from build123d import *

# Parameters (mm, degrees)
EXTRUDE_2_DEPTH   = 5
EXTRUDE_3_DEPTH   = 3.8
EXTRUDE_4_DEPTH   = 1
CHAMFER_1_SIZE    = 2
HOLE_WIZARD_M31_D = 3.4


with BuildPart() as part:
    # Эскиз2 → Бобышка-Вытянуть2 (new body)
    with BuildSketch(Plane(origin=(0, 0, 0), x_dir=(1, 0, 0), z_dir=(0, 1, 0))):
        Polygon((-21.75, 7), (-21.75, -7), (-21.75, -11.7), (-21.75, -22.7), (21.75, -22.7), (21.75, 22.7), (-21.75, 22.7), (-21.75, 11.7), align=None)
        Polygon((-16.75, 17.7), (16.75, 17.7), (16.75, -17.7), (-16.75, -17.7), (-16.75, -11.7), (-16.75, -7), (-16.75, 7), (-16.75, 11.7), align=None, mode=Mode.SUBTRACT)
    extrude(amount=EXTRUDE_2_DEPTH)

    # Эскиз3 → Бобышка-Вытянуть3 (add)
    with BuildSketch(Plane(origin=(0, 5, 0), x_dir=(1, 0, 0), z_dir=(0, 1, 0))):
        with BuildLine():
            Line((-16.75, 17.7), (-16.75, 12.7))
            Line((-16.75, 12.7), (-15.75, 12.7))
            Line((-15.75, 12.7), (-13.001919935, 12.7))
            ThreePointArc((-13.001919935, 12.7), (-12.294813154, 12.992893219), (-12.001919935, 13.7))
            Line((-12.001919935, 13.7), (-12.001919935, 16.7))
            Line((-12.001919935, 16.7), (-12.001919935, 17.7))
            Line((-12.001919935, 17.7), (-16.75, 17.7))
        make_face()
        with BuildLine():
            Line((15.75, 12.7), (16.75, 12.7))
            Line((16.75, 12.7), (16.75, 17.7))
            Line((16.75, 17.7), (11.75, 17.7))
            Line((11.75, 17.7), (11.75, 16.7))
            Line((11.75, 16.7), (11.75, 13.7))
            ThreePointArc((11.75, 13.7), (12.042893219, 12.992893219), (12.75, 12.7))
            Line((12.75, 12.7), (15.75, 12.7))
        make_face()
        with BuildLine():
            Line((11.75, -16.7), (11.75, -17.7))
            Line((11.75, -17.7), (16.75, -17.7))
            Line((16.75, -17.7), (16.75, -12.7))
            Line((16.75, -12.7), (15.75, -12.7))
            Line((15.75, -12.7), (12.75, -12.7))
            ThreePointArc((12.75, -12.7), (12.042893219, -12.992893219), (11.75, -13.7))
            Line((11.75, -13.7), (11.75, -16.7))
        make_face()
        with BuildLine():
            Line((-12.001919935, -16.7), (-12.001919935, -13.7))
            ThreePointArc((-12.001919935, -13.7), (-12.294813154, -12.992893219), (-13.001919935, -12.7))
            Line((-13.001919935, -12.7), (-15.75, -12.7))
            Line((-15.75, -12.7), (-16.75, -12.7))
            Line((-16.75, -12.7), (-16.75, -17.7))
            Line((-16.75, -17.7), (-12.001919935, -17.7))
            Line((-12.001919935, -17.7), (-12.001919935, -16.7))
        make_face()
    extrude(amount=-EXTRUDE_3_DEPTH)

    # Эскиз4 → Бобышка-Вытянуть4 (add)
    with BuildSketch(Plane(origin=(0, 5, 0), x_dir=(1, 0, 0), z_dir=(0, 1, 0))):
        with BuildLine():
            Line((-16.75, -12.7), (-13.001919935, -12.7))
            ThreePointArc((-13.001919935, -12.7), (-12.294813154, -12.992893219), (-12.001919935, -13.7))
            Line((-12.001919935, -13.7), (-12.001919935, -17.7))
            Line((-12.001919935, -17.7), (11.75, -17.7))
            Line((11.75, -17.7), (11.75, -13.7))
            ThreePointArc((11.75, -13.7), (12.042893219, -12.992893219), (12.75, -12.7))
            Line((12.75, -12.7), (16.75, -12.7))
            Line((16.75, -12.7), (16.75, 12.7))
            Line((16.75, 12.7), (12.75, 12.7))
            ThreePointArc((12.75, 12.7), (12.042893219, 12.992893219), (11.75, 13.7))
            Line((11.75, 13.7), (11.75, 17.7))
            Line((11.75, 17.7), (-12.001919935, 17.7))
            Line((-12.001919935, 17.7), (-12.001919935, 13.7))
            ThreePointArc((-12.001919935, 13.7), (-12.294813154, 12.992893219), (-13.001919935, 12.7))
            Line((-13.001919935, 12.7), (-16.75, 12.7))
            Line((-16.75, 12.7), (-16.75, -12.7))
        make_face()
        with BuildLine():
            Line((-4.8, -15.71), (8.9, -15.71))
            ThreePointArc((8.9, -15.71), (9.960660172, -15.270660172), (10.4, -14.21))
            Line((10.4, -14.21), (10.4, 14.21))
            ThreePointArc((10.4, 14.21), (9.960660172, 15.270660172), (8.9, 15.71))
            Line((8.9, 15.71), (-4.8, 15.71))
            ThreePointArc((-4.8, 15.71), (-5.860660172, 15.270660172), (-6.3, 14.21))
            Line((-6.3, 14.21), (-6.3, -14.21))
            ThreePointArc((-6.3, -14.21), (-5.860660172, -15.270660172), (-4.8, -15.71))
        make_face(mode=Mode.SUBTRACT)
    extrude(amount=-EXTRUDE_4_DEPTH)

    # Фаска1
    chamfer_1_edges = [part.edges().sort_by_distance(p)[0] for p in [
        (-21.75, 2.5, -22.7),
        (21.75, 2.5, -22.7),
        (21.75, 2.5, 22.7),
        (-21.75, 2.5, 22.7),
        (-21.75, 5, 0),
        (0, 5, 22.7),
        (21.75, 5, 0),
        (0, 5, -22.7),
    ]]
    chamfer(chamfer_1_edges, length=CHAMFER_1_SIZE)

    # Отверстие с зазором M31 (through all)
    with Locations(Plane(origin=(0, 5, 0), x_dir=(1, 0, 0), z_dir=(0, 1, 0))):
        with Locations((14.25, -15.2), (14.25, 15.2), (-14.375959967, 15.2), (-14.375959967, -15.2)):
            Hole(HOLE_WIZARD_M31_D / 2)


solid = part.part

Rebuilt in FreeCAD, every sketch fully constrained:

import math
import FreeCAD as App
import Part
import Sketcher

V = App.Vector


def edges_at(feature, points):
    """Names of the edges that pass closest to the given points."""
    edges = feature.Shape.Edges
    near = lambda p: min(range(len(edges)), key=lambda i: edges[i].distToShape(Part.Vertex(*p))[0])
    return sorted({f"Edge{near(p) + 1}" for p in points})

doc = App.newDocument("Part")
params = doc.addObject("Spreadsheet::Sheet", "Params")
for row, (alias, value) in enumerate([
    ("sketch1_width", "43.5 mm"),
    ("sketch1_width2", "33.5 mm"),
    ("sketch1_height", "45.4 mm"),
    ("sketch1_height2", "35.4 mm"),
    ("pad1_length", "5 mm"),
    ("sketch2_radius", "1 mm"),
    ("sketch2_width", "5 mm"),
    ("pad2_length", "3.8 mm"),
    ("sketch3_radius", "1 mm"),
    ("sketch3_radius2", "1.5 mm"),
    ("sketch3_width", "4 mm"),
    ("sketch3_width2", "13.7 mm"),
    ("sketch3_height", "25.4 mm"),
    ("pad3_length", "1 mm"),
    ("chamfer_size", "2 mm"),
    ("sketch4_diameter", "3.4 mm"),
    ("hole_diameter", "3.4 mm"),
], start=1):
    params.set(f"A{row}", alias)
    params.set(f"B{row}", "=" + value)
    params.setAlias(f"B{row}", alias)

body = doc.addObject("PartDesign::Body", "Body")

# Sketch on XZ plane
sketch1 = doc.addObject("Sketcher::SketchObject", "Sketch")
body.addObject(sketch1)
sketch1.AttachmentSupport = (doc.XZ_Plane, [""])
sketch1.MapMode = "FlatFace"
sketch1.addGeometry(Part.LineSegment(V(-22, 23, 0), V(22, 23, 0)), False)
sketch1.addGeometry(Part.LineSegment(V(22, 23, 0), V(22, -23, 0)), False)
sketch1.addGeometry(Part.LineSegment(V(22, -23, 0), V(-22, -23, 0)), False)
sketch1.addGeometry(Part.LineSegment(V(-22, -23, 0), V(-22, 23, 0)), False)
sketch1.addGeometry(Part.LineSegment(V(-17, 18, 0), V(-17, -18, 0)), False)
sketch1.addGeometry(Part.LineSegment(V(-17, -18, 0), V(17, -18, 0)), False)
sketch1.addGeometry(Part.LineSegment(V(17, -18, 0), V(17, 18, 0)), False)
sketch1.addGeometry(Part.LineSegment(V(17, 18, 0), V(-17, 18, 0)), False)
sketch1.addConstraint(Sketcher.Constraint("Coincident", 0, 2, 1, 1))
sketch1.addConstraint(Sketcher.Constraint("Coincident", 1, 2, 2, 1))
sketch1.addConstraint(Sketcher.Constraint("Coincident", 2, 2, 3, 1))
sketch1.addConstraint(Sketcher.Constraint("Coincident", 3, 2, 0, 1))
sketch1.addConstraint(Sketcher.Constraint("Coincident", 4, 2, 5, 1))
sketch1.addConstraint(Sketcher.Constraint("Coincident", 5, 2, 6, 1))
sketch1.addConstraint(Sketcher.Constraint("Coincident", 6, 2, 7, 1))
sketch1.addConstraint(Sketcher.Constraint("Coincident", 7, 2, 4, 1))
sketch1.addConstraint(Sketcher.Constraint("Horizontal", 0))
sketch1.addConstraint(Sketcher.Constraint("Vertical", 1))
sketch1.addConstraint(Sketcher.Constraint("Horizontal", 2))
sketch1.addConstraint(Sketcher.Constraint("Vertical", 3))
sketch1.addConstraint(Sketcher.Constraint("Vertical", 4))
sketch1.addConstraint(Sketcher.Constraint("Horizontal", 5))
sketch1.addConstraint(Sketcher.Constraint("Vertical", 6))
sketch1.addConstraint(Sketcher.Constraint("Horizontal", 7))
sketch1.addConstraint(Sketcher.Constraint("Symmetric", 0, 2, 2, 2, -1, 1))
sketch1.addConstraint(Sketcher.Constraint("Symmetric", 4, 2, 6, 2, -1, 1))
sketch1.addConstraint(Sketcher.Constraint("DistanceX", 0, 1, 0, 2, 43.5))
sketch1.addConstraint(Sketcher.Constraint("DistanceX", 5, 1, 5, 2, 33.5))
sketch1.addConstraint(Sketcher.Constraint("DistanceY", 1, 2, 1, 1, 45.4))
sketch1.addConstraint(Sketcher.Constraint("DistanceY", 4, 2, 4, 1, 35.4))
sketch1.setExpression("Constraints[18]", "Params.sketch1_width")
sketch1.setExpression("Constraints[19]", "Params.sketch1_width2")
sketch1.setExpression("Constraints[20]", "Params.sketch1_height")
sketch1.setExpression("Constraints[21]", "Params.sketch1_height2")
pad1 = doc.addObject("PartDesign::Pad", "Pad")
body.addObject(pad1)
pad1.Profile = sketch1
pad1.setExpression("Length", "Params.pad1_length")
pad1.Reversed = True

# Sketch on XZ plane
sketch2 = doc.addObject("Sketcher::SketchObject", "Sketch001")
body.addObject(sketch2)
sketch2.AttachmentSupport = (doc.XZ_Plane, [""])
sketch2.MapMode = "FlatFace"
sketch2.AttachmentOffset = App.Placement(V(0, 0, -5), App.Rotation())
sketch2.addGeometry(Part.LineSegment(V(-16.8, -17.7, 0), V(-16.8, -12.7, 0)), False)
sketch2.addGeometry(Part.LineSegment(V(-16.8, -12.7, 0), V(-13, -12.7, 0)), False)
sketch2.addGeometry(Part.ArcOfCircle(Part.Circle(V(-13, -13.7, 0), V(0, 0, 1), 1), math.radians(0), math.radians(90)), False)
sketch2.addGeometry(Part.LineSegment(V(-12, -13.7, 0), V(-12, -17.7, 0)), False)
sketch2.addGeometry(Part.LineSegment(V(-12, -17.7, 0), V(-16.8, -17.7, 0)), False)
sketch2.addGeometry(Part.LineSegment(V(16.8, -12.7, 0), V(16.8, -17.7, 0)), False)
sketch2.addGeometry(Part.LineSegment(V(16.8, -17.7, 0), V(11.8, -17.7, 0)), False)
sketch2.addGeometry(Part.LineSegment(V(11.8, -17.7, 0), V(11.8, -13.7, 0)), False)
sketch2.addGeometry(Part.ArcOfCircle(Part.Circle(V(12.8, -13.7, 0), V(0, 0, 1), 1), math.radians(90), math.radians(180)), False)
sketch2.addGeometry(Part.LineSegment(V(12.8, -12.7, 0), V(16.8, -12.7, 0)), False)
sketch2.addGeometry(Part.LineSegment(V(11.8, 17.7, 0), V(16.8, 17.7, 0)), False)
sketch2.addGeometry(Part.LineSegment(V(16.8, 17.7, 0), V(16.8, 12.7, 0)), False)
sketch2.addGeometry(Part.LineSegment(V(16.8, 12.7, 0), V(12.8, 12.7, 0)), False)
sketch2.addGeometry(Part.ArcOfCircle(Part.Circle(V(12.8, 13.7, 0), V(0, 0, 1), 1), math.radians(-180), math.radians(-90)), False)
sketch2.addGeometry(Part.LineSegment(V(11.8, 13.7, 0), V(11.8, 17.7, 0)), False)
sketch2.addGeometry(Part.ArcOfCircle(Part.Circle(V(-13, 13.7, 0), V(0, 0, 1), 1), math.radians(-90), math.radians(0)), False)
sketch2.addGeometry(Part.LineSegment(V(-13, 12.7, 0), V(-16.8, 12.7, 0)), False)
sketch2.addGeometry(Part.LineSegment(V(-16.8, 12.7, 0), V(-16.8, 17.7, 0)), False)
sketch2.addGeometry(Part.LineSegment(V(-16.8, 17.7, 0), V(-12, 17.7, 0)), False)
sketch2.addGeometry(Part.LineSegment(V(-12, 17.7, 0), V(-12, 13.7, 0)), False)
sketch2.addConstraint(Sketcher.Constraint("Coincident", 0, 2, 1, 1))
sketch2.addConstraint(Sketcher.Constraint("Tangent", 1, 2, 2, 2))
sketch2.addConstraint(Sketcher.Constraint("Tangent", 2, 1, 3, 1))
sketch2.addConstraint(Sketcher.Constraint("Coincident", 3, 2, 4, 1))
sketch2.addConstraint(Sketcher.Constraint("Coincident", 4, 2, 0, 1))
sketch2.addConstraint(Sketcher.Constraint("Coincident", 5, 2, 6, 1))
sketch2.addConstraint(Sketcher.Constraint("Coincident", 6, 2, 7, 1))
sketch2.addConstraint(Sketcher.Constraint("Tangent", 7, 2, 8, 2))
sketch2.addConstraint(Sketcher.Constraint("Tangent", 8, 1, 9, 1))
sketch2.addConstraint(Sketcher.Constraint("Coincident", 9, 2, 5, 1))
sketch2.addConstraint(Sketcher.Constraint("Coincident", 10, 2, 11, 1))
sketch2.addConstraint(Sketcher.Constraint("Coincident", 11, 2, 12, 1))
sketch2.addConstraint(Sketcher.Constraint("Tangent", 12, 2, 13, 2))
sketch2.addConstraint(Sketcher.Constraint("Tangent", 13, 1, 14, 1))
sketch2.addConstraint(Sketcher.Constraint("Coincident", 14, 2, 10, 1))
sketch2.addConstraint(Sketcher.Constraint("Tangent", 15, 1, 16, 1))
sketch2.addConstraint(Sketcher.Constraint("Coincident", 16, 2, 17, 1))
sketch2.addConstraint(Sketcher.Constraint("Coincident", 17, 2, 18, 1))
sketch2.addConstraint(Sketcher.Constraint("Coincident", 18, 2, 19, 1))
sketch2.addConstraint(Sketcher.Constraint("Tangent", 19, 2, 15, 2))
sketch2.addConstraint(Sketcher.Constraint("Vertical", 0))
sketch2.addConstraint(Sketcher.Constraint("Horizontal", 1))
sketch2.addConstraint(Sketcher.Constraint("Vertical", 3))
sketch2.addConstraint(Sketcher.Constraint("Horizontal", 4))
sketch2.addConstraint(Sketcher.Constraint("Vertical", 5))
sketch2.addConstraint(Sketcher.Constraint("Horizontal", 6))
sketch2.addConstraint(Sketcher.Constraint("Vertical", 7))
sketch2.addConstraint(Sketcher.Constraint("Horizontal", 9))
sketch2.addConstraint(Sketcher.Constraint("Horizontal", 10))
sketch2.addConstraint(Sketcher.Constraint("Vertical", 11))
sketch2.addConstraint(Sketcher.Constraint("Horizontal", 12))
sketch2.addConstraint(Sketcher.Constraint("Vertical", 14))
sketch2.addConstraint(Sketcher.Constraint("Horizontal", 16))
sketch2.addConstraint(Sketcher.Constraint("Vertical", 17))
sketch2.addConstraint(Sketcher.Constraint("Horizontal", 18))
sketch2.addConstraint(Sketcher.Constraint("Vertical", 19))
sketch2.addConstraint(Sketcher.Constraint("Equal", 2, 8))
sketch2.addConstraint(Sketcher.Constraint("Equal", 8, 13))
sketch2.addConstraint(Sketcher.Constraint("Equal", 13, 15))
sketch2.addConstraint(Sketcher.Constraint("Symmetric", 4, 2, 10, 2, -1, 1))
sketch2.addConstraint(Sketcher.Constraint("Symmetric", 9, 2, 16, 2, -1, 1))
sketch2.addConstraint(Sketcher.Constraint("Symmetric", 4, 2, 5, 2, -2))
sketch2.addConstraint(Sketcher.Constraint("Symmetric", 8, 3, 13, 3, -1))
sketch2.addConstraint(Sketcher.Constraint("Symmetric", 2, 3, 15, 3, -1))
sketch2.addConstraint(Sketcher.Constraint("Horizontal", 14, 2, 17, 2))
sketch2.addConstraint(Sketcher.Constraint("Equal", 10, 0))
sketch2.addConstraint(Sketcher.Constraint("Radius", 2, 1.0))
sketch2.addConstraint(Sketcher.Constraint("DistanceX", 6, 2, 6, 1, 5.0))
sketch2.addConstraint(Sketcher.Constraint("DistanceY", 2, 3, -1, 1, 13.7))
sketch2.addConstraint(Sketcher.Constraint("DistanceX", 0, 2, 8, 3, 29.5))
sketch2.addConstraint(Sketcher.Constraint("DistanceX", 1, 1, 1, 2, 3.74808))
sketch2.setExpression("Constraints[46]", "Params.sketch2_radius")
sketch2.setExpression("Constraints[47]", "Params.sketch2_width")
pad2 = doc.addObject("PartDesign::Pad", "Pad001")
body.addObject(pad2)
pad2.Profile = sketch2
pad2.setExpression("Length", "Params.pad2_length")

# Sketch on XZ plane
sketch3 = doc.addObject("Sketcher::SketchObject", "Sketch002")
body.addObject(sketch3)
sketch3.AttachmentSupport = (doc.XZ_Plane, [""])
sketch3.MapMode = "FlatFace"
sketch3.AttachmentOffset = App.Placement(V(0, 0, -5), App.Rotation())
sketch3.addGeometry(Part.LineSegment(V(-16.8, 12.7, 0), V(-13, 12.7, 0)), False)
sketch3.addGeometry(Part.ArcOfCircle(Part.Circle(V(-13, 13.7, 0), V(0, 0, 1), 1), math.radians(-90), math.radians(0)), False)
sketch3.addGeometry(Part.LineSegment(V(-12, 13.7, 0), V(-12, 17.7, 0)), False)
sketch3.addGeometry(Part.LineSegment(V(-12, 17.7, 0), V(11.8, 17.7, 0)), False)
sketch3.addGeometry(Part.LineSegment(V(11.8, 17.7, 0), V(11.8, 13.7, 0)), False)
sketch3.addGeometry(Part.ArcOfCircle(Part.Circle(V(12.8, 13.7, 0), V(0, 0, 1), 1), math.radians(-180), math.radians(-90)), False)
sketch3.addGeometry(Part.LineSegment(V(12.8, 12.7, 0), V(16.8, 12.7, 0)), False)
sketch3.addGeometry(Part.LineSegment(V(16.8, 12.7, 0), V(16.8, -12.7, 0)), False)
sketch3.addGeometry(Part.LineSegment(V(16.8, -12.7, 0), V(12.8, -12.7, 0)), False)
sketch3.addGeometry(Part.ArcOfCircle(Part.Circle(V(12.8, -13.7, 0), V(0, 0, 1), 1), math.radians(90), math.radians(180)), False)
sketch3.addGeometry(Part.LineSegment(V(11.8, -13.7, 0), V(11.8, -17.7, 0)), False)
sketch3.addGeometry(Part.LineSegment(V(11.8, -17.7, 0), V(-12, -17.7, 0)), False)
sketch3.addGeometry(Part.LineSegment(V(-12, -17.7, 0), V(-12, -13.7, 0)), False)
sketch3.addGeometry(Part.ArcOfCircle(Part.Circle(V(-13, -13.7, 0), V(0, 0, 1), 1), math.radians(0), math.radians(90)), False)
sketch3.addGeometry(Part.LineSegment(V(-13, -12.7, 0), V(-16.8, -12.7, 0)), False)
sketch3.addGeometry(Part.LineSegment(V(-16.8, -12.7, 0), V(-16.8, 12.7, 0)), False)
sketch3.addGeometry(Part.LineSegment(V(8.9, 15.7, 0), V(-4.8, 15.7, 0)), False)
sketch3.addGeometry(Part.ArcOfCircle(Part.Circle(V(-4.8, 14.2, 0), V(0, 0, 1), 1.5), math.radians(90), math.radians(180)), False)
sketch3.addGeometry(Part.LineSegment(V(-6.3, 14.2, 0), V(-6.3, -14.2, 0)), False)
sketch3.addGeometry(Part.ArcOfCircle(Part.Circle(V(-4.8, -14.2, 0), V(0, 0, 1), 1.5), math.radians(180), math.radians(270)), False)
sketch3.addGeometry(Part.LineSegment(V(-4.8, -15.7, 0), V(8.9, -15.7, 0)), False)
sketch3.addGeometry(Part.ArcOfCircle(Part.Circle(V(8.9, -14.2, 0), V(0, 0, 1), 1.5), math.radians(-90), math.radians(0)), False)
sketch3.addGeometry(Part.LineSegment(V(10.4, -14.2, 0), V(10.4, 14.2, 0)), False)
sketch3.addGeometry(Part.ArcOfCircle(Part.Circle(V(8.9, 14.2, 0), V(0, 0, 1), 1.5), math.radians(0), math.radians(90)), False)
sketch3.addConstraint(Sketcher.Constraint("Tangent", 0, 2, 1, 1))
sketch3.addConstraint(Sketcher.Constraint("Tangent", 1, 2, 2, 1))
sketch3.addConstraint(Sketcher.Constraint("Coincident", 2, 2, 3, 1))
sketch3.addConstraint(Sketcher.Constraint("Coincident", 3, 2, 4, 1))
sketch3.addConstraint(Sketcher.Constraint("Tangent", 4, 2, 5, 1))
sketch3.addConstraint(Sketcher.Constraint("Tangent", 5, 2, 6, 1))
sketch3.addConstraint(Sketcher.Constraint("Coincident", 6, 2, 7, 1))
sketch3.addConstraint(Sketcher.Constraint("Coincident", 7, 2, 8, 1))
sketch3.addConstraint(Sketcher.Constraint("Tangent", 8, 2, 9, 1))
sketch3.addConstraint(Sketcher.Constraint("Tangent", 9, 2, 10, 1))
sketch3.addConstraint(Sketcher.Constraint("Coincident", 10, 2, 11, 1))
sketch3.addConstraint(Sketcher.Constraint("Coincident", 11, 2, 12, 1))
sketch3.addConstraint(Sketcher.Constraint("Tangent", 12, 2, 13, 1))
sketch3.addConstraint(Sketcher.Constraint("Tangent", 13, 2, 14, 1))
sketch3.addConstraint(Sketcher.Constraint("Coincident", 14, 2, 15, 1))
sketch3.addConstraint(Sketcher.Constraint("Coincident", 15, 2, 0, 1))
sketch3.addConstraint(Sketcher.Constraint("Tangent", 16, 2, 17, 1))
sketch3.addConstraint(Sketcher.Constraint("Tangent", 17, 2, 18, 1))
sketch3.addConstraint(Sketcher.Constraint("Tangent", 18, 2, 19, 1))
sketch3.addConstraint(Sketcher.Constraint("Tangent", 19, 2, 20, 1))
sketch3.addConstraint(Sketcher.Constraint("Tangent", 20, 2, 21, 1))
sketch3.addConstraint(Sketcher.Constraint("Tangent", 21, 2, 22, 1))
sketch3.addConstraint(Sketcher.Constraint("Tangent", 22, 2, 23, 1))
sketch3.addConstraint(Sketcher.Constraint("Tangent", 23, 2, 16, 1))
sketch3.addConstraint(Sketcher.Constraint("Horizontal", 0))
sketch3.addConstraint(Sketcher.Constraint("Vertical", 2))
sketch3.addConstraint(Sketcher.Constraint("Horizontal", 3))
sketch3.addConstraint(Sketcher.Constraint("Vertical", 4))
sketch3.addConstraint(Sketcher.Constraint("Horizontal", 6))
sketch3.addConstraint(Sketcher.Constraint("Vertical", 7))
sketch3.addConstraint(Sketcher.Constraint("Horizontal", 8))
sketch3.addConstraint(Sketcher.Constraint("Vertical", 10))
sketch3.addConstraint(Sketcher.Constraint("Horizontal", 11))
sketch3.addConstraint(Sketcher.Constraint("Vertical", 12))
sketch3.addConstraint(Sketcher.Constraint("Horizontal", 14))
sketch3.addConstraint(Sketcher.Constraint("Vertical", 15))
sketch3.addConstraint(Sketcher.Constraint("Horizontal", 16))
sketch3.addConstraint(Sketcher.Constraint("Vertical", 18))
sketch3.addConstraint(Sketcher.Constraint("Horizontal", 20))
sketch3.addConstraint(Sketcher.Constraint("Vertical", 22))
sketch3.addConstraint(Sketcher.Constraint("Equal", 1, 5))
sketch3.addConstraint(Sketcher.Constraint("Equal", 5, 9))
sketch3.addConstraint(Sketcher.Constraint("Equal", 9, 13))
sketch3.addConstraint(Sketcher.Constraint("Equal", 17, 19))
sketch3.addConstraint(Sketcher.Constraint("Equal", 19, 21))
sketch3.addConstraint(Sketcher.Constraint("Equal", 21, 23))
sketch3.addConstraint(Sketcher.Constraint("Symmetric", 6, 2, 14, 2, -1, 1))
sketch3.addConstraint(Sketcher.Constraint("Symmetric", 5, 3, 9, 3, -1))
sketch3.addConstraint(Sketcher.Constraint("Symmetric", 1, 3, 13, 3, -1))
sketch3.addConstraint(Sketcher.Constraint("Equal", 8, 2))
sketch3.addConstraint(Sketcher.Constraint("Equal", 4, 10))
sketch3.addConstraint(Sketcher.Constraint("Radius", 1, 1.0))
sketch3.addConstraint(Sketcher.Constraint("Radius", 17, 1.5))
sketch3.addConstraint(Sketcher.Constraint("DistanceX", 6, 1, 6, 2, 4.0))
sketch3.addConstraint(Sketcher.Constraint("DistanceX", 16, 2, 16, 1, 13.7))
sketch3.addConstraint(Sketcher.Constraint("DistanceY", 7, 2, 7, 1, 25.4))
sketch3.addConstraint(Sketcher.Constraint("DistanceY", 18, 2, 18, 1, 28.42))
sketch3.addConstraint(Sketcher.Constraint("DistanceX", 17, 3, -1, 1, 4.8))
sketch3.addConstraint(Sketcher.Constraint("DistanceX", -1, 1, 5, 3, 12.75))
sketch3.addConstraint(Sketcher.Constraint("DistanceY", -1, 1, 17, 3, 14.21))
sketch3.addConstraint(Sketcher.Constraint("DistanceX", 0, 1, 0, 2, 3.74808))
sketch3.setExpression("Constraints[51]", "Params.sketch3_radius")
sketch3.setExpression("Constraints[52]", "Params.sketch3_radius2")
sketch3.setExpression("Constraints[53]", "Params.sketch3_width")
sketch3.setExpression("Constraints[54]", "Params.sketch3_width2")
sketch3.setExpression("Constraints[55]", "Params.sketch3_height")
pad3 = doc.addObject("PartDesign::Pad", "Pad002")
body.addObject(pad3)
pad3.Profile = sketch3
pad3.setExpression("Length", "Params.pad3_length")
doc.recompute()

chamfer = doc.addObject("PartDesign::Chamfer", "Chamfer")
body.addObject(chamfer)
chamfer.Base = (pad3, edges_at(pad3, [
    (-21.75, 2.5, -22.7),
    (21.75, 2.5, -22.7),
    (21.75, 2.5, 22.7),
    (-21.75, 2.5, 22.7),
    (-21.75, 5, 0),
    (0, 5, 22.7),
    (21.75, 5, 0),
    (0, 5, -22.7),
]))
chamfer.setExpression("Size", "Params.chamfer_size")

# Sketch on XZ plane
sketch4 = doc.addObject("Sketcher::SketchObject", "Sketch003")
body.addObject(sketch4)
sketch4.AttachmentSupport = (doc.XZ_Plane, [""])
sketch4.MapMode = "FlatFace"
sketch4.AttachmentOffset = App.Placement(V(0, 0, -5), App.Rotation())
sketch4.addGeometry(Part.Circle(V(14.2, 15.2, 0), V(0, 0, 1), 1.7), False)
sketch4.addGeometry(Part.Circle(V(14.2, -15.2, 0), V(0, 0, 1), 1.7), False)
sketch4.addGeometry(Part.Circle(V(-14.4, -15.2, 0), V(0, 0, 1), 1.7), False)
sketch4.addGeometry(Part.Circle(V(-14.4, 15.2, 0), V(0, 0, 1), 1.7), False)
sketch4.addConstraint(Sketcher.Constraint("Equal", 0, 1))
sketch4.addConstraint(Sketcher.Constraint("Equal", 1, 2))
sketch4.addConstraint(Sketcher.Constraint("Equal", 2, 3))
sketch4.addConstraint(Sketcher.Constraint("Symmetric", 0, 3, 1, 3, -1))
sketch4.addConstraint(Sketcher.Constraint("Symmetric", 2, 3, 3, 3, -1))
sketch4.addConstraint(Sketcher.Constraint("Horizontal", 1, 3, 2, 3))
sketch4.addConstraint(Sketcher.Constraint("Diameter", 0, 3.4))
sketch4.addConstraint(Sketcher.Constraint("DistanceY", -1, 1, 0, 3, 15.2))
sketch4.addConstraint(Sketcher.Constraint("DistanceX", -1, 1, 0, 3, 14.25))
sketch4.addConstraint(Sketcher.Constraint("DistanceX", 2, 3, -1, 1, 14.37596))
sketch4.setExpression("Constraints[6]", "Params.sketch4_diameter")
doc.recompute()
hole = doc.addObject("PartDesign::Hole", "Hole")
body.addObject(hole)
hole.Profile = sketch4
hole.ThreadType = "None"
hole.setExpression("Diameter", "Params.hole_diameter")
hole.DepthType = "ThroughAll"
hole.Reversed = True

doc.recompute()
